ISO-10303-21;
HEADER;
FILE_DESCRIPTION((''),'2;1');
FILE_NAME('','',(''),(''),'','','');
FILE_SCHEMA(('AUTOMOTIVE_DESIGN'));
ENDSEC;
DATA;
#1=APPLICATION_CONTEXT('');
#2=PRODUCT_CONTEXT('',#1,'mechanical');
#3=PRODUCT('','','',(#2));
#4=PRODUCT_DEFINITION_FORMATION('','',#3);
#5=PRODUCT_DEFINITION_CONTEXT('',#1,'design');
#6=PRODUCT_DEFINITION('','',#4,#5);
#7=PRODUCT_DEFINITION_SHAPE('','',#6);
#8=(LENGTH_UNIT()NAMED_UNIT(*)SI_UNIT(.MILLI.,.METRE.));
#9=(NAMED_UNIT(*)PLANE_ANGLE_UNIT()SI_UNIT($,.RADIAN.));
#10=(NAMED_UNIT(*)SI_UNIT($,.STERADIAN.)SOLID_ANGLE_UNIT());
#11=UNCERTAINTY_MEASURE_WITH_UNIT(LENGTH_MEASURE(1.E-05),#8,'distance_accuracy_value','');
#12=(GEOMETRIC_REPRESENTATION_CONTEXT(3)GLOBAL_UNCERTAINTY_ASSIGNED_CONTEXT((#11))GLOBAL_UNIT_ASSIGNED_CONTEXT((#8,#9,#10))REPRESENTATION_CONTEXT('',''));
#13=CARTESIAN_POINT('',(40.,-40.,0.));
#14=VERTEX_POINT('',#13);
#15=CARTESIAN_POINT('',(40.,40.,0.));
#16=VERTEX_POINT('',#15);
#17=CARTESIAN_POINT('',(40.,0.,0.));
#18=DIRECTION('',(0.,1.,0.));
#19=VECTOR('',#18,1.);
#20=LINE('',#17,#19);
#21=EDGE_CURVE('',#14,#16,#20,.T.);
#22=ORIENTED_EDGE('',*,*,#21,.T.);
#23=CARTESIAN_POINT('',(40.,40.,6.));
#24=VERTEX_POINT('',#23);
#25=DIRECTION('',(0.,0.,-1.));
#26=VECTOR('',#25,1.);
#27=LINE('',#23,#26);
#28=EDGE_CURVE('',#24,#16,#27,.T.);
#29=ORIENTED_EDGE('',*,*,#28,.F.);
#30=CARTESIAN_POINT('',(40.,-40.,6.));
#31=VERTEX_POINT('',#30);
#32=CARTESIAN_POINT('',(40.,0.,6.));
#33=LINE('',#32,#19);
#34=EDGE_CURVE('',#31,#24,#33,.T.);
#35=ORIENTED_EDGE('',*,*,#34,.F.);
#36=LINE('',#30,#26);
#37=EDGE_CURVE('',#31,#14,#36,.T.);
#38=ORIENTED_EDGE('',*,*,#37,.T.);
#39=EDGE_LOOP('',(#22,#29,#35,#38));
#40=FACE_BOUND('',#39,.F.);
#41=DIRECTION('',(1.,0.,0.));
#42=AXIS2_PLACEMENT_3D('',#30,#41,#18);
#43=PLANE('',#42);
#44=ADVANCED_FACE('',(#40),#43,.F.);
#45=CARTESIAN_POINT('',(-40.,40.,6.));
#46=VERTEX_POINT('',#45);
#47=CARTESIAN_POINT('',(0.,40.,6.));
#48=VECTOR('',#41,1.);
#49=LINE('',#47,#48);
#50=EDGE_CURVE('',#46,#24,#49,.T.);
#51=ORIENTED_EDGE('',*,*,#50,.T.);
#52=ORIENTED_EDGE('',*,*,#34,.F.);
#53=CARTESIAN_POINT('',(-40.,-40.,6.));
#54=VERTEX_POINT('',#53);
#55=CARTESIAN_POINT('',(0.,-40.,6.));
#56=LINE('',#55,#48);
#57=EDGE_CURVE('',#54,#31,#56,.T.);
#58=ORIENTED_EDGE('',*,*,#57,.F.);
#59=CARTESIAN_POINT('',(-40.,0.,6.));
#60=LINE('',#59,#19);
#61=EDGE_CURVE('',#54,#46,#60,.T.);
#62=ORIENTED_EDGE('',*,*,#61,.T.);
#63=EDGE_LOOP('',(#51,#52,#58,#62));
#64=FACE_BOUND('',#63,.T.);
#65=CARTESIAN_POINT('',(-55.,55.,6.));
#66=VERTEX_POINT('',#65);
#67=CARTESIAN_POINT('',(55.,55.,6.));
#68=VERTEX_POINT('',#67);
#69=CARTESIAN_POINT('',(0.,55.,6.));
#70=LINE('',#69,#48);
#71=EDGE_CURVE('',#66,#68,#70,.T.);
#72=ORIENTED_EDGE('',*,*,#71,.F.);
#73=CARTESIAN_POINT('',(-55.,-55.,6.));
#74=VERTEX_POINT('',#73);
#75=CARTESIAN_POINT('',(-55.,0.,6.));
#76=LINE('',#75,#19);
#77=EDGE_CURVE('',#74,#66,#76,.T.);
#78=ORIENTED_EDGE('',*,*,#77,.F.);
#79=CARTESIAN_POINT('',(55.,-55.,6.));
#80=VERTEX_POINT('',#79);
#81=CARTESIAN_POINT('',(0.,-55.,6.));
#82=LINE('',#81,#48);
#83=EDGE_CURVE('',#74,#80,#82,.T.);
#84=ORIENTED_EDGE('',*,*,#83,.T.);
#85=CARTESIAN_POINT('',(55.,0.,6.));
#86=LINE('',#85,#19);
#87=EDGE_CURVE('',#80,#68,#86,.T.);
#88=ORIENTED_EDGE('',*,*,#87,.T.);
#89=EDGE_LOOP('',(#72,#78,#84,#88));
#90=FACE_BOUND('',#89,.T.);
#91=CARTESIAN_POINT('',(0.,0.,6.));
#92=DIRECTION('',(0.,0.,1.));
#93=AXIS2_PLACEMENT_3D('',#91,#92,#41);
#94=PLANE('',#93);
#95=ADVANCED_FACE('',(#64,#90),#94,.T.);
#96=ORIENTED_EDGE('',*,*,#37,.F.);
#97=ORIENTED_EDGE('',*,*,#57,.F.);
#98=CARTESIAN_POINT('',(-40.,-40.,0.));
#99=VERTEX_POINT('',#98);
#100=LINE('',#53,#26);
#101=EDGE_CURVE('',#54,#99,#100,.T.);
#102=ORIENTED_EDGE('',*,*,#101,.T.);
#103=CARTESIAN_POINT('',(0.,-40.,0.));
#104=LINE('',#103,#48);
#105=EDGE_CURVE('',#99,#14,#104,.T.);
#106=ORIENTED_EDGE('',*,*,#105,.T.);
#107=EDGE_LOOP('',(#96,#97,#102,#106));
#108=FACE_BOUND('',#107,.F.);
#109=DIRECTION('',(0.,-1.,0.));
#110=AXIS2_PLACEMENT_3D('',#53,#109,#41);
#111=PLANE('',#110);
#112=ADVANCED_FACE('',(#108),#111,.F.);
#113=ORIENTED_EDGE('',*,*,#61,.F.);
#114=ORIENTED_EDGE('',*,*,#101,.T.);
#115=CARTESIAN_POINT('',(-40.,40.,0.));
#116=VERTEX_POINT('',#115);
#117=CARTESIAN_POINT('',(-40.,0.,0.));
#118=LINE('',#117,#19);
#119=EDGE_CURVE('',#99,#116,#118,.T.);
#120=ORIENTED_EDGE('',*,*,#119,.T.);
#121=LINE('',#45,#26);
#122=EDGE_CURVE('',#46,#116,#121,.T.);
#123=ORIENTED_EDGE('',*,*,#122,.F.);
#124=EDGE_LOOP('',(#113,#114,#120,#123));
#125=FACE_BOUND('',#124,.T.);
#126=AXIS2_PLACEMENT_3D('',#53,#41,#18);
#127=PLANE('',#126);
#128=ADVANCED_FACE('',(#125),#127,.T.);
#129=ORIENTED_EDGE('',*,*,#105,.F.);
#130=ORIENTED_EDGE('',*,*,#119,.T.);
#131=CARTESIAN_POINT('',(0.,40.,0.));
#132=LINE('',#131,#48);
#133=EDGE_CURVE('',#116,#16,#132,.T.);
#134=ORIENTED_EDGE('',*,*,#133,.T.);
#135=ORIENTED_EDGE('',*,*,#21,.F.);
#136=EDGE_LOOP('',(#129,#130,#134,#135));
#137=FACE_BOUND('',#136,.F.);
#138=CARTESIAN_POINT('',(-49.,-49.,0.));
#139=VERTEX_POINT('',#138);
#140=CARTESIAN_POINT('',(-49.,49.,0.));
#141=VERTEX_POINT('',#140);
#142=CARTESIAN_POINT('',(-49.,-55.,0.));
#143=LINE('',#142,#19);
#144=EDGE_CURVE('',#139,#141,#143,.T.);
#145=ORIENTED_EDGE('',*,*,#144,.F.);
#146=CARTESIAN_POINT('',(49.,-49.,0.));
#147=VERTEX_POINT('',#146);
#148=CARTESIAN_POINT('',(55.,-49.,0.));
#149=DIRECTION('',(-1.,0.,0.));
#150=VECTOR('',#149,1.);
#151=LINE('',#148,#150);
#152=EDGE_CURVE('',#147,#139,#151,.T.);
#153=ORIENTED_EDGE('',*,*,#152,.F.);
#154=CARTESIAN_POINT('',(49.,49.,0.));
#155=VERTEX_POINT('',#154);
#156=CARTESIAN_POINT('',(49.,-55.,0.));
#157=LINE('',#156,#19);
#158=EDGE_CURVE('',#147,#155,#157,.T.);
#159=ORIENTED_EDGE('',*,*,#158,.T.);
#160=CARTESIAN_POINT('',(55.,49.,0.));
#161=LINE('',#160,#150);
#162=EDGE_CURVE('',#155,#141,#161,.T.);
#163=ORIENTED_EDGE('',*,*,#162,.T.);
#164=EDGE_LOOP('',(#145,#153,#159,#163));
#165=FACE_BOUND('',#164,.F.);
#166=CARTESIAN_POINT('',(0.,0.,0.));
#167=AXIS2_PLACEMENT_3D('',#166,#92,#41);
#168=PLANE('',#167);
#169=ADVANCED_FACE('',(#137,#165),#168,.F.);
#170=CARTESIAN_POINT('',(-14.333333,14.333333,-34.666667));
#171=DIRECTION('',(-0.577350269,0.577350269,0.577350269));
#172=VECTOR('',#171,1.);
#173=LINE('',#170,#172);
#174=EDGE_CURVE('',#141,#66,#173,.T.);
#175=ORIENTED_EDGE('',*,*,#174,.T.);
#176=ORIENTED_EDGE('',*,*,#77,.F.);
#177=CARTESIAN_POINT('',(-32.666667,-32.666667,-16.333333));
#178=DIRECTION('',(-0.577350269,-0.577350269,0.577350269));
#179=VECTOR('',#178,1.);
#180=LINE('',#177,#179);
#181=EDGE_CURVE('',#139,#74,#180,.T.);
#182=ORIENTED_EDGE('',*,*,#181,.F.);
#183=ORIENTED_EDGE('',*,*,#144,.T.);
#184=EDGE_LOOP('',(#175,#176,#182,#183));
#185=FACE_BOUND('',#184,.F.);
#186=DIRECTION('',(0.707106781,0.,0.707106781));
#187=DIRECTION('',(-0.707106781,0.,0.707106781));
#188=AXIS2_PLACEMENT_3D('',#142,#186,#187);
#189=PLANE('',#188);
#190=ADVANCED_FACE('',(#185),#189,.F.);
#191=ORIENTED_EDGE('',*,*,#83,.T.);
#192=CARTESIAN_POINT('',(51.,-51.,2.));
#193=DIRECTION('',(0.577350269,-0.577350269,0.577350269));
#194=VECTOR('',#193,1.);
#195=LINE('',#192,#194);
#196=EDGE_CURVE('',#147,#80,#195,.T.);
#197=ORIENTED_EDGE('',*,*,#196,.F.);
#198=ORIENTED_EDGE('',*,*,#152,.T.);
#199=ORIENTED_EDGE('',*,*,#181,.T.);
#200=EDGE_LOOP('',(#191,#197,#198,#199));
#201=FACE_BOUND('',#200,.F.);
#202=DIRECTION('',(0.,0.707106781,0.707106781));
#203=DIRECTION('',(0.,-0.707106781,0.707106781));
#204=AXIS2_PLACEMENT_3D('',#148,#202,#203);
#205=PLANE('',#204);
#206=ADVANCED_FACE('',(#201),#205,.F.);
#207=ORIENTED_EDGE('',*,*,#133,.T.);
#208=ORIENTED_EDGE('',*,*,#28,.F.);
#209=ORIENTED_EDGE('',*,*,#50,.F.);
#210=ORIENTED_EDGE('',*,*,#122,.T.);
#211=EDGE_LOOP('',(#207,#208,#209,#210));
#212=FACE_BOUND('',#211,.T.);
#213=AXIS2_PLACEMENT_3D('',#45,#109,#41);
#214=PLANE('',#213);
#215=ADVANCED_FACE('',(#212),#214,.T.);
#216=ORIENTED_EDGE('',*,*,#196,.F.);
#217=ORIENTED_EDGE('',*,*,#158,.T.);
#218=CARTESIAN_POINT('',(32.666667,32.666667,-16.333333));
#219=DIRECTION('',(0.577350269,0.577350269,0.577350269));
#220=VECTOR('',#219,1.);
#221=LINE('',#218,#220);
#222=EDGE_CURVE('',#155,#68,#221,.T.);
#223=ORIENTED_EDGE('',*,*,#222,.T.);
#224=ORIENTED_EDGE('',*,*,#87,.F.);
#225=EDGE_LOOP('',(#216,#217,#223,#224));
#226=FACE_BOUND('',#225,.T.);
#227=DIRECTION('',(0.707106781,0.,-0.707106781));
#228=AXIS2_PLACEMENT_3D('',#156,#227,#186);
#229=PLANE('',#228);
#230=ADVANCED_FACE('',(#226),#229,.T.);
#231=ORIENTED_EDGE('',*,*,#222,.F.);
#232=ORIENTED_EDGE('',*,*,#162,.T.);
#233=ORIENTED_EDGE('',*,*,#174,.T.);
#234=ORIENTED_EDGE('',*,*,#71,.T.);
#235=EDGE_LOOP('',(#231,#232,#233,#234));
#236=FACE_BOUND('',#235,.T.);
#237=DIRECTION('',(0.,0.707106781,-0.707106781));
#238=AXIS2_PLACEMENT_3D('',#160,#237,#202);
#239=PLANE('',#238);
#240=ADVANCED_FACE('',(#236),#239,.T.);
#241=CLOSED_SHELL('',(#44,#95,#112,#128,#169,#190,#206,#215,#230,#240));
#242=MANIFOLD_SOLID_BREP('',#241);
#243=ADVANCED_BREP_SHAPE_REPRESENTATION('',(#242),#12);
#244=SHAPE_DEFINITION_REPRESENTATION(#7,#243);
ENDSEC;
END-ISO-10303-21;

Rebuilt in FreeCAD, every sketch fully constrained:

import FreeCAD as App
import Part
import Sketcher
Q = App.Units.Quantity


def add_polygon(sketch, points):
    """Adds a closed chain of lines whose ends are joined by coincident constraints."""
    first, n = sketch.GeometryCount, len(points)
    for a, b in zip(points, points[1:] + points[:1]):
        sketch.addGeometry(Part.LineSegment(App.Vector(*a, 0), App.Vector(*b, 0)), False)
    for i in range(n):
        sketch.addConstraint(Sketcher.Constraint("Coincident", first + i, 2, first + (i + 1) % n, 1))

doc = App.newDocument("Part")
params = doc.addObject("Spreadsheet::Sheet", "Params")
for row, (alias, value) in enumerate([
    ("sketch1_width", "110 mm"),
    ("pad1_length", "6 mm"),
    ("sketch2_width", "6 mm"),
    ("pocket1_length", "110 mm"),
    ("sketch3_width", "6 mm"),
    ("pocket2_length", "110 mm"),
    ("sketch4_width", "80 mm"),
    ("pocket3_length", "6 mm"),
], start=1):
    params.set(f"A{row}", alias)
    params.set(f"B{row}", "=" + value)
    params.setAlias(f"B{row}", alias)

body = doc.addObject("PartDesign::Body", "Body")

sketch1 = body.newObject("Sketcher::SketchObject", "Sketch")
sketch1.AttachmentSupport = (doc.getObject("XY_Plane"), [""])
sketch1.MapMode = "FlatFace"
add_polygon(sketch1, [(-55, 55), (-55, -55), (55, -55), (55, 55)])
sketch1.addConstraint(Sketcher.Constraint("Vertical", 0))
sketch1.addConstraint(Sketcher.Constraint("Horizontal", 1))
sketch1.addConstraint(Sketcher.Constraint("Vertical", 2))
sketch1.addConstraint(Sketcher.Constraint("Horizontal", 3))
sketch1.addConstraint(Sketcher.Constraint("Symmetric", 0, 2, 2, 2, -1, 1))
sketch1.addConstraint(Sketcher.Constraint("Equal", 3, 0))
sketch1.addConstraint(Sketcher.Constraint("DistanceX", 1, 1, 1, 2, Q("110 mm")))
sketch1.setExpression("Constraints[10]", "Params.sketch1_width")
pad1 = body.newObject("PartDesign::Pad", "Pad")
pad1.Profile = sketch1
pad1.setExpression("Length", "Params.pad1_length")

sketch2 = body.newObject("Sketcher::SketchObject", "Sketch001")
sketch2.AttachmentSupport = (doc.getObject("XZ_Plane"), [""])
sketch2.MapMode = "FlatFace"
sketch2.AttachmentOffset = App.Placement(App.Vector(0, 0, 55), App.Rotation())
add_polygon(sketch2, [(55, 0), (55, 6), (49, 0)])
add_polygon(sketch2, [(-55, 6), (-55, 0), (-49, 0)])
sketch2.addConstraint(Sketcher.Constraint("Vertical", 0))
sketch2.addConstraint(Sketcher.Constraint("Horizontal", 2))
sketch2.addConstraint(Sketcher.Constraint("Vertical", 3))
sketch2.addConstraint(Sketcher.Constraint("Horizontal", 4))
sketch2.addConstraint(Sketcher.Constraint("Symmetric", 2, 2, 3, 2, -1, 1))
sketch2.addConstraint(Sketcher.Constraint("Symmetric", 1, 2, 4, 2, -2))
sketch2.addConstraint(Sketcher.Constraint("Perpendicular", 1, 5))
sketch2.addConstraint(Sketcher.Constraint("Horizontal", 0, 2, 5, 2))
sketch2.addConstraint(Sketcher.Constraint("DistanceX", 2, 1, 2, 2, Q("6 mm")))
sketch2.addConstraint(Sketcher.Constraint("DistanceX", -1, 1, 0, 2, Q("55 mm")))
sketch2.setExpression("Constraints[14]", "Params.sketch2_width")
pocket1 = body.newObject("PartDesign::Pocket", "Pocket")
pocket1.Profile = sketch2
pocket1.setExpression("Length", "Params.pocket1_length")

sketch3 = body.newObject("Sketcher::SketchObject", "Sketch002")
sketch3.AttachmentSupport = (doc.getObject("YZ_Plane"), [""])
sketch3.MapMode = "FlatFace"
sketch3.AttachmentOffset = App.Placement(App.Vector(0, 0, 55), App.Rotation())
add_polygon(sketch3, [(55, 0), (55, 6), (49, 0)])
add_polygon(sketch3, [(-55, 6), (-55, 0), (-49, 0)])
sketch3.addConstraint(Sketcher.Constraint("Vertical", 0))
sketch3.addConstraint(Sketcher.Constraint("Horizontal", 2))
sketch3.addConstraint(Sketcher.Constraint("Vertical", 3))
sketch3.addConstraint(Sketcher.Constraint("Horizontal", 4))
sketch3.addConstraint(Sketcher.Constraint("Symmetric", 2, 2, 3, 2, -1, 1))
sketch3.addConstraint(Sketcher.Constraint("Symmetric", 1, 2, 4, 2, -2))
sketch3.addConstraint(Sketcher.Constraint("Perpendicular", 1, 5))
sketch3.addConstraint(Sketcher.Constraint("Horizontal", 0, 2, 5, 2))
sketch3.addConstraint(Sketcher.Constraint("DistanceX", 2, 1, 2, 2, Q("6 mm")))
sketch3.addConstraint(Sketcher.Constraint("DistanceX", -1, 1, 0, 2, Q("55 mm")))
sketch3.setExpression("Constraints[14]", "Params.sketch3_width")
pocket2 = body.newObject("PartDesign::Pocket", "Pocket001")
pocket2.Profile = sketch3
pocket2.setExpression("Length", "Params.pocket2_length")

sketch4 = body.newObject("Sketcher::SketchObject", "Sketch003")
sketch4.AttachmentSupport = (doc.getObject("XY_Plane"), [""])
sketch4.MapMode = "FlatFace"
sketch4.AttachmentOffset = App.Placement(App.Vector(0, 0, 6), App.Rotation())
add_polygon(sketch4, [(-40, 40), (-40, -40), (40, -40), (40, 40)])
sketch4.addConstraint(Sketcher.Constraint("Vertical", 0))
sketch4.addConstraint(Sketcher.Constraint("Horizontal", 1))
sketch4.addConstraint(Sketcher.Constraint("Vertical", 2))
sketch4.addConstraint(Sketcher.Constraint("Horizontal", 3))
sketch4.addConstraint(Sketcher.Constraint("Symmetric", 0, 2, 2, 2, -1, 1))
sketch4.addConstraint(Sketcher.Constraint("Equal", 3, 0))
sketch4.addConstraint(Sketcher.Constraint("DistanceX", 1, 1, 1, 2, Q("80 mm")))
sketch4.setExpression("Constraints[10]", "Params.sketch4_width")
pocket3 = body.newObject("PartDesign::Pocket", "Pocket002")
pocket3.Profile = sketch4
pocket3.setExpression("Length", "Params.pocket3_length")

doc.recompute()
